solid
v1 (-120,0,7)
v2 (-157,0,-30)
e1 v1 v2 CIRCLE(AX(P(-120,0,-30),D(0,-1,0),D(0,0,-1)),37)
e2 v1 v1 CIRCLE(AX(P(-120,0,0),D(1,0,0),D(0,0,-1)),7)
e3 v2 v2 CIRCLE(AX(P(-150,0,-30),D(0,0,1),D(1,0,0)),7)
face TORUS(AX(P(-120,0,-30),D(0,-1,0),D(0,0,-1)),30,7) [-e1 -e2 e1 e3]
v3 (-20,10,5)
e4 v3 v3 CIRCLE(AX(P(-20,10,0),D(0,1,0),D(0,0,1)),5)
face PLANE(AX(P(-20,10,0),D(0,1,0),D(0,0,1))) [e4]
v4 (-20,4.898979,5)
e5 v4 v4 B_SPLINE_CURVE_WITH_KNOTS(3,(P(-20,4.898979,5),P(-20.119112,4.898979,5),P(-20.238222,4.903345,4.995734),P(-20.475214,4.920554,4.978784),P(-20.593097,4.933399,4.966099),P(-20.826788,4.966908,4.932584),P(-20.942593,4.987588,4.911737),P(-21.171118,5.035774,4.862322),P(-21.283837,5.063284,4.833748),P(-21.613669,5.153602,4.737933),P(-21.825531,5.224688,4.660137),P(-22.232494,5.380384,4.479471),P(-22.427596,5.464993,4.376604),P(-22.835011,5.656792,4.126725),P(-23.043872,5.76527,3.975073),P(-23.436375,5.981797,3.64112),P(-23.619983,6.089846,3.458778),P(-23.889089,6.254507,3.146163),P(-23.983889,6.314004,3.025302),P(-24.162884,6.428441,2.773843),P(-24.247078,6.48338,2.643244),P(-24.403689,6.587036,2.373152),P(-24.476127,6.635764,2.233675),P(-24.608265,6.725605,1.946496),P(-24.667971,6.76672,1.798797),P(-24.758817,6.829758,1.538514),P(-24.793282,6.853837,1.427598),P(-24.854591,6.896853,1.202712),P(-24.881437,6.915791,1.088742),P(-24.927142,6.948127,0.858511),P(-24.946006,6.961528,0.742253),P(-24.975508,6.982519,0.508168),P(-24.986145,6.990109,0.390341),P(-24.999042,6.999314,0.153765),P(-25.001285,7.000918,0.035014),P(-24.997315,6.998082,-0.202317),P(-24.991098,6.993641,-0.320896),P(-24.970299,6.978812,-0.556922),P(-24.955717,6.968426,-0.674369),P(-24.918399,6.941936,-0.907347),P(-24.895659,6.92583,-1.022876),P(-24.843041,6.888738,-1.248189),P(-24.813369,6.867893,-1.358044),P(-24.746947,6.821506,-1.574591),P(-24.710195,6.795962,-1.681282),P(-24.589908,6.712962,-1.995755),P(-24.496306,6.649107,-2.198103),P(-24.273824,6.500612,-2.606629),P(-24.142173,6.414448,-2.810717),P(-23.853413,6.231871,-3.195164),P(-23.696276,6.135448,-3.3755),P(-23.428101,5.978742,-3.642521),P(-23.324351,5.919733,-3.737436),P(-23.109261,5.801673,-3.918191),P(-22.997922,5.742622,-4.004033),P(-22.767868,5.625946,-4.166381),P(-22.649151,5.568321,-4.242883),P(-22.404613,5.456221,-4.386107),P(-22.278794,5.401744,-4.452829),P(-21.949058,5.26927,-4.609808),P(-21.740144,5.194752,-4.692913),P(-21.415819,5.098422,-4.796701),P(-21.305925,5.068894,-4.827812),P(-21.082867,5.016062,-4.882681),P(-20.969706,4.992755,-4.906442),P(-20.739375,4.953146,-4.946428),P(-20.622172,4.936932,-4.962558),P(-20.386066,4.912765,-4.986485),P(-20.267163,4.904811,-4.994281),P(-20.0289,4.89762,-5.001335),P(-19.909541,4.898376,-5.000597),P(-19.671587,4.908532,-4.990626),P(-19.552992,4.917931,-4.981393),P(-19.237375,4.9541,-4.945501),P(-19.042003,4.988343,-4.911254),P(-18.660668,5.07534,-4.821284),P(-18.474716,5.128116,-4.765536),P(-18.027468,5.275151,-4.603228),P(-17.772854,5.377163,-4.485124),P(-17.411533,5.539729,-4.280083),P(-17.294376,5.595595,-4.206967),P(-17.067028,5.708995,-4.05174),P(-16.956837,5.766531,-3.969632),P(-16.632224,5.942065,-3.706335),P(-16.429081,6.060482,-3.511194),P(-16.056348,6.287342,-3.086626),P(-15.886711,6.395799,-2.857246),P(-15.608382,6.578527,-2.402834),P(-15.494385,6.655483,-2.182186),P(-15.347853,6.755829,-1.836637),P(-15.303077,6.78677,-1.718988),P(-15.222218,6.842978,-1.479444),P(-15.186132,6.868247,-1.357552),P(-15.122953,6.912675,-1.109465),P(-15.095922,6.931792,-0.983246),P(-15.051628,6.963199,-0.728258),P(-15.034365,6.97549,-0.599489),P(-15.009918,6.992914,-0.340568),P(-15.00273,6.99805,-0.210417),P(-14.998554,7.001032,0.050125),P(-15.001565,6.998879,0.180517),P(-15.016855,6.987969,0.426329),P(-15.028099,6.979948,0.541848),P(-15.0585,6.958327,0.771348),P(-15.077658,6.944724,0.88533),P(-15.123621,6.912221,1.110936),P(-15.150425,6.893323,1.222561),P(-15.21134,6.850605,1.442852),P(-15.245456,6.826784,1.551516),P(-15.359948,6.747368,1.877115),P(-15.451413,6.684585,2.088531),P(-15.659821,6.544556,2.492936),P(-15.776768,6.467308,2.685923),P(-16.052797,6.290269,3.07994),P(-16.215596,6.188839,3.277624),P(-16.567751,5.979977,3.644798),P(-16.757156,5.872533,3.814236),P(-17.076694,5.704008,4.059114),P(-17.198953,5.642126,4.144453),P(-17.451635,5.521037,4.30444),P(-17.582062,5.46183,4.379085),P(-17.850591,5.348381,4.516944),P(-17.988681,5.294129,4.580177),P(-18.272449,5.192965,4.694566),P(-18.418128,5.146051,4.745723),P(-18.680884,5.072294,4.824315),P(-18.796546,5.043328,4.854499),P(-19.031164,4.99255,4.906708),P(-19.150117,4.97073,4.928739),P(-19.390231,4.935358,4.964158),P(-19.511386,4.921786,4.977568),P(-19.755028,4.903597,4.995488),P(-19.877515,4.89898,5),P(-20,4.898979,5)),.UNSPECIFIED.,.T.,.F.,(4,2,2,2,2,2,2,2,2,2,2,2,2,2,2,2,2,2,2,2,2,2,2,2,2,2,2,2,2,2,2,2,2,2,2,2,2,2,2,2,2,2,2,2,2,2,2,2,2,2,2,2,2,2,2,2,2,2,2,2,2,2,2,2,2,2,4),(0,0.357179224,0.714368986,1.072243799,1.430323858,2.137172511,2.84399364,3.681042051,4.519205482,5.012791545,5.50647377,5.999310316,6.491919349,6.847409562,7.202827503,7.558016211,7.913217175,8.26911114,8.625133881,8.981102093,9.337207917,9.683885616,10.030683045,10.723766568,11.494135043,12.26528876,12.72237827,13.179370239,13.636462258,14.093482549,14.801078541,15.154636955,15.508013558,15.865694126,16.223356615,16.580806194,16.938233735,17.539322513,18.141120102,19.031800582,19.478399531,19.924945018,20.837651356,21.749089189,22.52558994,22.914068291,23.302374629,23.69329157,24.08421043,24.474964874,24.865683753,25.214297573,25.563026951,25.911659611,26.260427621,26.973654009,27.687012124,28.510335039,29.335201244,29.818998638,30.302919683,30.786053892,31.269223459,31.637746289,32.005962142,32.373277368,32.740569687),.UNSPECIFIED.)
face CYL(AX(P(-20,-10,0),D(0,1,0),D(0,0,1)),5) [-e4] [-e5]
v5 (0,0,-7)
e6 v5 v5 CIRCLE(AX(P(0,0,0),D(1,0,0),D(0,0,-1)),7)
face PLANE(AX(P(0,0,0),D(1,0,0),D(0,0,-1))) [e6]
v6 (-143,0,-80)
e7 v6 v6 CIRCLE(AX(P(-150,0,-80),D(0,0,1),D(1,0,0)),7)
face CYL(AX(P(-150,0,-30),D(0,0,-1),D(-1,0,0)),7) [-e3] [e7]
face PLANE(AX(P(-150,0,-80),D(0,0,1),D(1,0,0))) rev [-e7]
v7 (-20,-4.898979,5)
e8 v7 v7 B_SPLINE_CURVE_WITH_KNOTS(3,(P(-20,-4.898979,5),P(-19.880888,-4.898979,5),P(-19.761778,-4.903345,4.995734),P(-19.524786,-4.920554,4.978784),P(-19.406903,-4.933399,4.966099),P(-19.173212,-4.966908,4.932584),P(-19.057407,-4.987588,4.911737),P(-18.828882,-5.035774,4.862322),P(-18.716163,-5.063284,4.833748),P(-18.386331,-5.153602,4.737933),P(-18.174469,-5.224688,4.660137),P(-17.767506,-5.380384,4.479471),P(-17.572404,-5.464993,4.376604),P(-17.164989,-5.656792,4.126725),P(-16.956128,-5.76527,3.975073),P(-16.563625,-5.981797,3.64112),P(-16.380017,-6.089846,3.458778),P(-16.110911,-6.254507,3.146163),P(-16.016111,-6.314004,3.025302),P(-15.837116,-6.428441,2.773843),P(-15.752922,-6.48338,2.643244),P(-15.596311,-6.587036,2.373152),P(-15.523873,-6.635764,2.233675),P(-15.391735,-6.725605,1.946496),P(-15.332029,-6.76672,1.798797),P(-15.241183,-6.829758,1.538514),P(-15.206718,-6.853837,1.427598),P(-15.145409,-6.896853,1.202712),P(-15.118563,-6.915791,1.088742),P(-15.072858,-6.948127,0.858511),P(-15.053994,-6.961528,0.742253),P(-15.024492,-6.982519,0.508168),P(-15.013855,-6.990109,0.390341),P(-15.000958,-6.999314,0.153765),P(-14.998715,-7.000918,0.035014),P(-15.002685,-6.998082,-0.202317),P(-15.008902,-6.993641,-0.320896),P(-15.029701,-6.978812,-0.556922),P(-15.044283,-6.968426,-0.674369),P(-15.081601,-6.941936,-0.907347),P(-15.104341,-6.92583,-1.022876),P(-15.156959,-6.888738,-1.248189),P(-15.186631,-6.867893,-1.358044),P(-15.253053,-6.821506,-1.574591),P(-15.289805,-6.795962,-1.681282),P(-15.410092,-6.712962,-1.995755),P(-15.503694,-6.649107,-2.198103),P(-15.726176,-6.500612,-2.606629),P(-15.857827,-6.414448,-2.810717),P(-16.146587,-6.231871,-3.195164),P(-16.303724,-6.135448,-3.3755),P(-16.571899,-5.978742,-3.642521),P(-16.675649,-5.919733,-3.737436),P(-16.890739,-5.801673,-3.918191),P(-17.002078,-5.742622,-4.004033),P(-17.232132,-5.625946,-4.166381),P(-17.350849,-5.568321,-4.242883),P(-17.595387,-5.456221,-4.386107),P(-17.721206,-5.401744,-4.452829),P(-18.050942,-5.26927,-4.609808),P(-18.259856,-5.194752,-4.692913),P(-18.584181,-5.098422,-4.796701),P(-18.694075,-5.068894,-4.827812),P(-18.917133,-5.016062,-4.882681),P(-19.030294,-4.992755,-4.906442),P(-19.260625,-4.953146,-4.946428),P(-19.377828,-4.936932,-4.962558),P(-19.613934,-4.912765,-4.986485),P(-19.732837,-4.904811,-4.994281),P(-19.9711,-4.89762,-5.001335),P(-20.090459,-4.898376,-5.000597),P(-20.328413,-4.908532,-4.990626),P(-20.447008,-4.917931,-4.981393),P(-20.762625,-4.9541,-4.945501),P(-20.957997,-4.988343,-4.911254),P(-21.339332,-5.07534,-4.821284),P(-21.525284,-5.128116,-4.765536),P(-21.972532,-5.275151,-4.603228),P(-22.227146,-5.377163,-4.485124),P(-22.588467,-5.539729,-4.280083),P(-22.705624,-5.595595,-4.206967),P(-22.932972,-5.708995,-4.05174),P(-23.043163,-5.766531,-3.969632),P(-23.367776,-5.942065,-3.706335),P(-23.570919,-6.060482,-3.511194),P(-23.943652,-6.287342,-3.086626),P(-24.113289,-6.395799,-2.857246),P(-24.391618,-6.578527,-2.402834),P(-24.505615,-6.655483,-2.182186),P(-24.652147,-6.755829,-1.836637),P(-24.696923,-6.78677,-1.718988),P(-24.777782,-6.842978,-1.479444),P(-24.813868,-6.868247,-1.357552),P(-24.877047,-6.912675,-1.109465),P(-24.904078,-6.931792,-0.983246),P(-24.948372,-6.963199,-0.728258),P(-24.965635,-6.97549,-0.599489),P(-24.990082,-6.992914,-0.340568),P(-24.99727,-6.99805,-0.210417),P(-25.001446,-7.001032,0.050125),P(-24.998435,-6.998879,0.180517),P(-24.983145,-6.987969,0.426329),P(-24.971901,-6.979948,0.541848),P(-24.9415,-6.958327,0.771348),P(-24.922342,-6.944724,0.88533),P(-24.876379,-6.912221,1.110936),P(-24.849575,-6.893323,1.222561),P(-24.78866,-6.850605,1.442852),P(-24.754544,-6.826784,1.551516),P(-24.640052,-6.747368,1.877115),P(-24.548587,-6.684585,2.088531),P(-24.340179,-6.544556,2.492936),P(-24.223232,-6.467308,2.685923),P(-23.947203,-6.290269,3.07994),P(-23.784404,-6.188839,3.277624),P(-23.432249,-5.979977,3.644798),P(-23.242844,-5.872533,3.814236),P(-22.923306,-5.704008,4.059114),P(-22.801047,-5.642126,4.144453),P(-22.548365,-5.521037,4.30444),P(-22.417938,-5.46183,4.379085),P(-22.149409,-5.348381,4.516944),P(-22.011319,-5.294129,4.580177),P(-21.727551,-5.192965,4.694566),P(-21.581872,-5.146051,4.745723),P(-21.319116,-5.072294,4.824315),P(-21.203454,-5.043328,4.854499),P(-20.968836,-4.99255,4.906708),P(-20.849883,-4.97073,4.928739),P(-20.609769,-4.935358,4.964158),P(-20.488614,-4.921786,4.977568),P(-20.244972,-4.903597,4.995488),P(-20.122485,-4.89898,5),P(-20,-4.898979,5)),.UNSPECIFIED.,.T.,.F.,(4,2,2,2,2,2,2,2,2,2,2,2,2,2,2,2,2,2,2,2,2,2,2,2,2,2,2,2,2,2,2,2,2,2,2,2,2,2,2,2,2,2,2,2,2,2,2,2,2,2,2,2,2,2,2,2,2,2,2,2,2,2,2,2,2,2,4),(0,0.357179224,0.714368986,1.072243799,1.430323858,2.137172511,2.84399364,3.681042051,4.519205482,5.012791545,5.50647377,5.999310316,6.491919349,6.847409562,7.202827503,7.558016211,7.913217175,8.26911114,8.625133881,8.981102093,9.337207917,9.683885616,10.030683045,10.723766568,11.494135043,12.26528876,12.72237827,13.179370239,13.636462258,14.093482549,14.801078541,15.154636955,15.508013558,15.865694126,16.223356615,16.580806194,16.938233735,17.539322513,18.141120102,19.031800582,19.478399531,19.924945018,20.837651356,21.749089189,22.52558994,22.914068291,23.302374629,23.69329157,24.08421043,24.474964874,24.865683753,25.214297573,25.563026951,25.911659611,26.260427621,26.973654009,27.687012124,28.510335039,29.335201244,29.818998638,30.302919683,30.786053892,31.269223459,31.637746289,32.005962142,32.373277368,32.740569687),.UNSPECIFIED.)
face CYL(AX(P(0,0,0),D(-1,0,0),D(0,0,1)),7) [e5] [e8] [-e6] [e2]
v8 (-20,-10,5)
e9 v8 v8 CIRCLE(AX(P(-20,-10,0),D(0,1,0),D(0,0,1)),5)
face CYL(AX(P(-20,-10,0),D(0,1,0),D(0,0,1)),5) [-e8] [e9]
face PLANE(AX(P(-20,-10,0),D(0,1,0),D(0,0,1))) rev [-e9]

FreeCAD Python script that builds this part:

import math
import FreeCAD as App
import Part
import Sketcher
from FreeCAD import Vector

doc = App.newDocument("Part")
body = doc.addObject("PartDesign::Body", "Body")

# Sketch on YZ plane
sketch1 = doc.addObject("Sketcher::SketchObject", "Sketch")
body.addObject(sketch1)
sketch1.AttachmentSupport = (doc.YZ_Plane, [""])
sketch1.MapMode = "FlatFace"
sketch1.addGeometry(Part.Circle(Vector(0, 0, 0), Vector(0, 0, 1), 7), False)
sketch1.addConstraint(Sketcher.Constraint("Coincident", 0, 3, -1, 1))
sketch1.addConstraint(Sketcher.Constraint("Diameter", 0, 14.0))

# Sketch on XZ plane
sketch2 = doc.addObject("Sketcher::SketchObject", "Sketch001")
body.addObject(sketch2)
sketch2.AttachmentSupport = (doc.XZ_Plane, [""])
sketch2.MapMode = "FlatFace"
sketch2.addGeometry(Part.LineSegment(Vector(0, 0, 0), Vector(-120, 0, 0)), False)
sketch2.addGeometry(Part.ArcOfCircle(Part.Circle(Vector(-120, -30, 0), Vector(0, 0, 1), 30), math.radians(90), math.radians(180)), False)
sketch2.addGeometry(Part.LineSegment(Vector(-150, -30, 0), Vector(-150, -80, 0)), False)
sketch2.addConstraint(Sketcher.Constraint("Tangent", 0, 2, 1, 1))
sketch2.addConstraint(Sketcher.Constraint("Tangent", 1, 2, 2, 1))
sketch2.addConstraint(Sketcher.Constraint("Horizontal", 0))
sketch2.addConstraint(Sketcher.Constraint("Vertical", 2))
sketch2.addConstraint(Sketcher.Constraint("Coincident", 0, 1, -1, 1))
sketch2.addConstraint(Sketcher.Constraint("Radius", 1, 30.0))
sketch2.addConstraint(Sketcher.Constraint("DistanceX", 0, 2, 0, 1, 120.0))
sketch2.addConstraint(Sketcher.Constraint("DistanceY", 2, 2, 2, 1, 50.0))
doc.recompute()

additivepipe = doc.addObject("PartDesign::AdditivePipe", "AdditivePipe")
body.addObject(additivepipe)
additivepipe.Profile = sketch1
additivepipe.Spine = (sketch2, ["Edge1", "Edge2", "Edge3"])

# Sketch on XZ plane
sketch3 = doc.addObject("Sketcher::SketchObject", "Sketch002")
body.addObject(sketch3)
sketch3.AttachmentSupport = (doc.XZ_Plane, [""])
sketch3.MapMode = "FlatFace"
sketch3.addGeometry(Part.Circle(Vector(-20, 0, 0), Vector(0, 0, 1), 5), False)
sketch3.addConstraint(Sketcher.Constraint("PointOnObject", 0, 3, -1))
sketch3.addConstraint(Sketcher.Constraint("Diameter", 0, 10.0))
sketch3.addConstraint(Sketcher.Constraint("DistanceX", 0, 3, -1, 1, 20.0))
pad1 = doc.addObject("PartDesign::Pad", "Pad")
body.addObject(pad1)
pad1.Profile = sketch3
pad1.Type = "TwoLengths"
pad1.Length = 10
pad1.Length2 = 10
pad1.Reversed = True

doc.recompute()
